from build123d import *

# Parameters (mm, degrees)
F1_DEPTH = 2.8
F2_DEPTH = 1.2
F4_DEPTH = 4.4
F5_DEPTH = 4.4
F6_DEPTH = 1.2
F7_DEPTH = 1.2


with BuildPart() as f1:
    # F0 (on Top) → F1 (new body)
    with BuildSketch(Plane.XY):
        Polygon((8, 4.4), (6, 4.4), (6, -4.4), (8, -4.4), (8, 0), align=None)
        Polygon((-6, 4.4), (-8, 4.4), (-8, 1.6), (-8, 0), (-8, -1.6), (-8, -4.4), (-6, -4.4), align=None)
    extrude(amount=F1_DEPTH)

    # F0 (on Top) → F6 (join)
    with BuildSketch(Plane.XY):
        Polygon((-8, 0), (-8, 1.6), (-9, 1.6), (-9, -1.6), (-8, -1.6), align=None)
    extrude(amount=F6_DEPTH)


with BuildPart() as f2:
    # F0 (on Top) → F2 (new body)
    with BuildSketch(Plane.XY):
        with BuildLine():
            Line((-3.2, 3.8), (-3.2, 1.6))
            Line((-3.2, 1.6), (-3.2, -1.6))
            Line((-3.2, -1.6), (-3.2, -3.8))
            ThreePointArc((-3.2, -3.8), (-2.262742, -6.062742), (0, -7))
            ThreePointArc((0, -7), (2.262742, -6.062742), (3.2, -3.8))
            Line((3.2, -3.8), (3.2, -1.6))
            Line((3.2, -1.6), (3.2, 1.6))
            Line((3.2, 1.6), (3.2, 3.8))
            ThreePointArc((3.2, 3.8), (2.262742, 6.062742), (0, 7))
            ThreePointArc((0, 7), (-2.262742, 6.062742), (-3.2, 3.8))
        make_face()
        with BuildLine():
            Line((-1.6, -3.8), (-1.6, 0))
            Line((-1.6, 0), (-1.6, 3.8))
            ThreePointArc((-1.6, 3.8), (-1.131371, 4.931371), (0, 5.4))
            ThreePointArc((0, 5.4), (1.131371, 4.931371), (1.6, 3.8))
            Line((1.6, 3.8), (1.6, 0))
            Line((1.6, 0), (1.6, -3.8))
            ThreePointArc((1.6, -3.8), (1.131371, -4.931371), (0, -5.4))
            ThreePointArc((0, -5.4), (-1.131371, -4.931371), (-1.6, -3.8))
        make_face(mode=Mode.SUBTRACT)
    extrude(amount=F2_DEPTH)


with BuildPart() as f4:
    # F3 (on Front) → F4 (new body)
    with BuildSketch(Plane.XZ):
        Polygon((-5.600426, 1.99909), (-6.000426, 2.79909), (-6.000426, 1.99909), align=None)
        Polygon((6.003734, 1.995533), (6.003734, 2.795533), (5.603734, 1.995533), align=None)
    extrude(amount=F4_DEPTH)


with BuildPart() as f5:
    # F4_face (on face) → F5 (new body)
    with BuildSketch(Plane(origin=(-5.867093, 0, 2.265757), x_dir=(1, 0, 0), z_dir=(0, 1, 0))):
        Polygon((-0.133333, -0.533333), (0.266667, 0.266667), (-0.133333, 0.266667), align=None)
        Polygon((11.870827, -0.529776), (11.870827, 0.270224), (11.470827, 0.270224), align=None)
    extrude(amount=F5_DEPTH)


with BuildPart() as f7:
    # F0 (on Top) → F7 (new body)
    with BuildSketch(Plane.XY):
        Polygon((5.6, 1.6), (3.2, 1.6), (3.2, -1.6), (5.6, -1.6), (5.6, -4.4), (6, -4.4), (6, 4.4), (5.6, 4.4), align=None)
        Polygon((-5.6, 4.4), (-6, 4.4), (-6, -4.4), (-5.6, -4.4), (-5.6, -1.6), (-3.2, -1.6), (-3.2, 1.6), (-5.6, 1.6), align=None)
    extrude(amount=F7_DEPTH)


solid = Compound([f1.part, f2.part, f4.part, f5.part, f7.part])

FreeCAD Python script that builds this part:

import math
import FreeCAD as App
import Part
import Sketcher

doc = App.newDocument("Part")
params = doc.addObject("Spreadsheet::Sheet", "Params")
for row, (alias, value) in enumerate([
    ("sketch1_width", "2 mm"),
    ("sketch1_height", "8.8 mm"),
    ("pad1_length", "2.8 mm"),
    ("sketch2_width", "1 mm"),
    ("sketch2_height", "3.2 mm"),
    ("pad2_length", "1.2 mm"),
    ("sketch3_radius", "3.199999 mm"),
    ("sketch3_radius2", "1.599999 mm"),
    ("sketch3_height", "7.6 mm"),
    ("pad3_length", "1.2 mm"),
    ("sketch4_width", "0.4 mm"),
    ("sketch4_height", "0.8 mm"),
    ("pad4_length", "4.4 mm"),
    ("sketch5_width", "0.4 mm"),
    ("sketch5_height", "0.8 mm"),
    ("pad5_length", "4.4 mm"),
    ("sketch6_width", "2.4 mm"),
    ("sketch6_width2", "0.4 mm"),
    ("sketch6_height", "3.2 mm"),
    ("sketch6_height2", "2.8 mm"),
    ("pad6_length", "1.2 mm"),
], start=1):
    params.set(f"A{row}", alias)
    params.set(f"B{row}", "=" + value)
    params.setAlias(f"B{row}", alias)

body = doc.addObject("PartDesign::Body", "Body")
body.AllowCompound = True

sketch1 = body.newObject("Sketcher::SketchObject", "Sketch")
sketch1.AttachmentSupport = (doc.getObject("XY_Plane"), [""])
sketch1.MapMode = "FlatFace"
sketch1.addGeometry(Part.LineSegment(App.Vector(8, 4.4, 0), App.Vector(6, 4.4, 0)), False)
sketch1.addGeometry(Part.LineSegment(App.Vector(6, 4.4, 0), App.Vector(6, -4.4, 0)), False)
sketch1.addGeometry(Part.LineSegment(App.Vector(6, -4.4, 0), App.Vector(8, -4.4, 0)), False)
sketch1.addGeometry(Part.LineSegment(App.Vector(8, -4.4, 0), App.Vector(8, 4.4, 0)), False)
sketch1.addGeometry(Part.LineSegment(App.Vector(-6, 4.4, 0), App.Vector(-8, 4.4, 0)), False)
sketch1.addGeometry(Part.LineSegment(App.Vector(-8, 4.4, 0), App.Vector(-8, -4.4, 0)), False)
sketch1.addGeometry(Part.LineSegment(App.Vector(-8, -4.4, 0), App.Vector(-6, -4.4, 0)), False)
sketch1.addGeometry(Part.LineSegment(App.Vector(-6, -4.4, 0), App.Vector(-6, 4.4, 0)), False)
sketch1.addConstraint(Sketcher.Constraint("Coincident", 0, 2, 1, 1))
sketch1.addConstraint(Sketcher.Constraint("Coincident", 1, 2, 2, 1))
sketch1.addConstraint(Sketcher.Constraint("Coincident", 2, 2, 3, 1))
sketch1.addConstraint(Sketcher.Constraint("Coincident", 3, 2, 0, 1))
sketch1.addConstraint(Sketcher.Constraint("Coincident", 4, 2, 5, 1))
sketch1.addConstraint(Sketcher.Constraint("Coincident", 5, 2, 6, 1))
sketch1.addConstraint(Sketcher.Constraint("Coincident", 6, 2, 7, 1))
sketch1.addConstraint(Sketcher.Constraint("Coincident", 7, 2, 4, 1))
sketch1.addConstraint(Sketcher.Constraint("Horizontal", 0))
sketch1.addConstraint(Sketcher.Constraint("Vertical", 1))
sketch1.addConstraint(Sketcher.Constraint("Horizontal", 2))
sketch1.addConstraint(Sketcher.Constraint("Vertical", 3))
sketch1.addConstraint(Sketcher.Constraint("Horizontal", 4))
sketch1.addConstraint(Sketcher.Constraint("Vertical", 5))
sketch1.addConstraint(Sketcher.Constraint("Horizontal", 6))
sketch1.addConstraint(Sketcher.Constraint("Vertical", 7))
sketch1.addConstraint(Sketcher.Constraint("Symmetric", 2, 2, 4, 2, -1, 1))
sketch1.addConstraint(Sketcher.Constraint("Symmetric", 0, 2, 6, 2, -1, 1))
sketch1.addConstraint(Sketcher.Constraint("Horizontal", 3, 2, 4, 2))
sketch1.addConstraint(Sketcher.Constraint("DistanceX", 0, 2, 0, 1, 2.0))
sketch1.addConstraint(Sketcher.Constraint("DistanceY", 1, 2, 1, 1, 8.8))
sketch1.addConstraint(Sketcher.Constraint("DistanceX", -1, 1, 0, 2, 6.0))
sketch1.setExpression("Constraints[19]", "Params.sketch1_width")
sketch1.setExpression("Constraints[20]", "Params.sketch1_height")
pad1 = body.newObject("PartDesign::Pad", "Pad")
pad1.Profile = sketch1
pad1.setExpression("Length", "Params.pad1_length")

sketch2 = body.newObject("Sketcher::SketchObject", "Sketch001")
sketch2.AttachmentSupport = (doc.getObject("XY_Plane"), [""])
sketch2.MapMode = "FlatFace"
sketch2.addGeometry(Part.LineSegment(App.Vector(-8, 1.6, 0), App.Vector(-9, 1.6, 0)), False)
sketch2.addGeometry(Part.LineSegment(App.Vector(-9, 1.6, 0), App.Vector(-9, -1.6, 0)), False)
sketch2.addGeometry(Part.LineSegment(App.Vector(-9, -1.6, 0), App.Vector(-8, -1.6, 0)), False)
sketch2.addGeometry(Part.LineSegment(App.Vector(-8, -1.6, 0), App.Vector(-8, 1.6, 0)), False)
sketch2.addConstraint(Sketcher.Constraint("Coincident", 0, 2, 1, 1))
sketch2.addConstraint(Sketcher.Constraint("Coincident", 1, 2, 2, 1))
sketch2.addConstraint(Sketcher.Constraint("Coincident", 2, 2, 3, 1))
sketch2.addConstraint(Sketcher.Constraint("Coincident", 3, 2, 0, 1))
sketch2.addConstraint(Sketcher.Constraint("Horizontal", 0))
sketch2.addConstraint(Sketcher.Constraint("Vertical", 1))
sketch2.addConstraint(Sketcher.Constraint("Horizontal", 2))
sketch2.addConstraint(Sketcher.Constraint("Vertical", 3))
sketch2.addConstraint(Sketcher.Constraint("DistanceX", 0, 2, 0, 1, 1.0))
sketch2.addConstraint(Sketcher.Constraint("DistanceY", 1, 2, 1, 1, 3.2))
sketch2.addConstraint(Sketcher.Constraint("DistanceX", 0, 2, -1, 1, 9.0))
sketch2.addConstraint(Sketcher.Constraint("DistanceY", -1, 1, 0, 2, 1.6))
sketch2.setExpression("Constraints[8]", "Params.sketch2_width")
sketch2.setExpression("Constraints[9]", "Params.sketch2_height")
pad2 = body.newObject("PartDesign::Pad", "Pad001")
pad2.Profile = sketch2
pad2.setExpression("Length", "Params.pad2_length")
body2 = doc.addObject("PartDesign::Body", "Body001")

sketch3 = body2.newObject("Sketcher::SketchObject", "Sketch002")
sketch3.AttachmentSupport = (doc.getObject("XY_Plane001"), [""])
sketch3.MapMode = "FlatFace"
sketch3.addGeometry(Part.LineSegment(App.Vector(-3.2, 3.8, 0), App.Vector(-3.2, -3.8, 0)), False)
sketch3.addGeometry(Part.ArcOfCircle(Part.Circle(App.Vector(-0.000001, -3.800001, 0), App.Vector(0, 0, 1), 3.199999), math.radians(179.999982), math.radians(270.000018)), False)
sketch3.addGeometry(Part.ArcOfCircle(Part.Circle(App.Vector(0.000001, -3.800001, 0), App.Vector(0, 0, 1), 3.199999), math.radians(-90.000018), math.radians(0.000018)), False)
sketch3.addGeometry(Part.LineSegment(App.Vector(3.2, -3.8, 0), App.Vector(3.2, 3.8, 0)), False)
sketch3.addGeometry(Part.ArcOfCircle(Part.Circle(App.Vector(0.000001, 3.800001, 0), App.Vector(0, 0, 1), 3.199999), math.radians(-0.000018), math.radians(90.000018)), False)
sketch3.addGeometry(Part.ArcOfCircle(Part.Circle(App.Vector(-0.000001, 3.800001, 0), App.Vector(0, 0, 1), 3.199999), math.radians(89.999982), math.radians(180.000018)), False)
sketch3.addGeometry(Part.ArcOfCircle(Part.Circle(App.Vector(-0.000001, -3.800001, 0), App.Vector(0, 0, 1), 1.599999), math.radians(179.999982), math.radians(270.000018)), False)
sketch3.addGeometry(Part.LineSegment(App.Vector(-1.6, -3.8, 0), App.Vector(-1.6, 3.8, 0)), False)
sketch3.addGeometry(Part.ArcOfCircle(Part.Circle(App.Vector(-0.000001, 3.800001, 0), App.Vector(0, 0, 1), 1.599999), math.radians(89.999982), math.radians(180.000018)), False)
sketch3.addGeometry(Part.ArcOfCircle(Part.Circle(App.Vector(0.000001, 3.800001, 0), App.Vector(0, 0, 1), 1.599999), math.radians(-0.000018), math.radians(90.000018)), False)
sketch3.addGeometry(Part.LineSegment(App.Vector(1.6, 3.8, 0), App.Vector(1.6, -3.8, 0)), False)
sketch3.addGeometry(Part.ArcOfCircle(Part.Circle(App.Vector(0.000001, -3.800001, 0), App.Vector(0, 0, 1), 1.599999), math.radians(-90.000018), math.radians(0.000018)), False)
sketch3.addConstraint(Sketcher.Constraint("Tangent", 0, 2, 1, 1))
sketch3.addConstraint(Sketcher.Constraint("Tangent", 1, 2, 2, 1))
sketch3.addConstraint(Sketcher.Constraint("Tangent", 2, 2, 3, 1))
sketch3.addConstraint(Sketcher.Constraint("Tangent", 3, 2, 4, 1))
sketch3.addConstraint(Sketcher.Constraint("Tangent", 4, 2, 5, 1))
sketch3.addConstraint(Sketcher.Constraint("Tangent", 5, 2, 0, 1))
sketch3.addConstraint(Sketcher.Constraint("Tangent", 6, 1, 7, 1))
sketch3.addConstraint(Sketcher.Constraint("Tangent", 7, 2, 8, 2))
sketch3.addConstraint(Sketcher.Constraint("Tangent", 8, 1, 9, 2))
sketch3.addConstraint(Sketcher.Constraint("Tangent", 9, 1, 10, 1))
sketch3.addConstraint(Sketcher.Constraint("Tangent", 10, 2, 11, 2))
sketch3.addConstraint(Sketcher.Constraint("Tangent", 11, 1, 6, 2))
sketch3.addConstraint(Sketcher.Constraint("Vertical", 0))
sketch3.addConstraint(Sketcher.Constraint("Vertical", 3))
sketch3.addConstraint(Sketcher.Constraint("Vertical", 7))
sketch3.addConstraint(Sketcher.Constraint("Vertical", 10))
sketch3.addConstraint(Sketcher.Constraint("Coincident", 6, 3, 1, 3))
sketch3.addConstraint(Sketcher.Constraint("Coincident", 8, 3, 4, 3))
sketch3.addConstraint(Sketcher.Constraint("Equal", 1, 2))
sketch3.addConstraint(Sketcher.Constraint("Equal", 2, 4))
sketch3.addConstraint(Sketcher.Constraint("Equal", 8, 9))
sketch3.addConstraint(Sketcher.Constraint("Symmetric", 1, 3, 4, 3, -1, 1))
sketch3.addConstraint(Sketcher.Constraint("PointOnObject", 1, 2, -2))
sketch3.addConstraint(Sketcher.Constraint("PointOnObject", 4, 2, -2))
sketch3.addConstraint(Sketcher.Constraint("PointOnObject", 8, 1, -2))
sketch3.addConstraint(Sketcher.Constraint("PointOnObject", 11, 1, -2))
sketch3.addConstraint(Sketcher.Constraint("Radius", 1, 3.199999))
sketch3.addConstraint(Sketcher.Constraint("Radius", 6, 1.599999))
sketch3.addConstraint(Sketcher.Constraint("DistanceY", 0, 2, 0, 1, 7.6))
sketch3.setExpression("Constraints[26]", "Params.sketch3_radius")
sketch3.setExpression("Constraints[27]", "Params.sketch3_radius2")
sketch3.setExpression("Constraints[28]", "Params.sketch3_height")
pad3 = body2.newObject("PartDesign::Pad", "Pad002")
pad3.Profile = sketch3
pad3.setExpression("Length", "Params.pad3_length")
body3 = doc.addObject("PartDesign::Body", "Body002")
body3.AllowCompound = True

sketch4 = body3.newObject("Sketcher::SketchObject", "Sketch003")
sketch4.AttachmentSupport = (doc.getObject("XZ_Plane002"), [""])
sketch4.MapMode = "FlatFace"
sketch4.addGeometry(Part.LineSegment(App.Vector(-5.600426, 1.99909, 0), App.Vector(-6.000426, 2.79909, 0)), False)
sketch4.addGeometry(Part.LineSegment(App.Vector(-6.000426, 2.79909, 0), App.Vector(-6.000426, 1.99909, 0)), False)
sketch4.addGeometry(Part.LineSegment(App.Vector(-6.000426, 1.99909, 0), App.Vector(-5.600426, 1.99909, 0)), False)
sketch4.addGeometry(Part.LineSegment(App.Vector(6.003734, 1.995533, 0), App.Vector(6.003734, 2.795533, 0)), False)
sketch4.addGeometry(Part.LineSegment(App.Vector(6.003734, 2.795533, 0), App.Vector(5.603734, 1.995533, 0)), False)
sketch4.addGeometry(Part.LineSegment(App.Vector(5.603734, 1.995533, 0), App.Vector(6.003734, 1.995533, 0)), False)
sketch4.addConstraint(Sketcher.Constraint("Coincident", 0, 2, 1, 1))
sketch4.addConstraint(Sketcher.Constraint("Coincident", 1, 2, 2, 1))
sketch4.addConstraint(Sketcher.Constraint("Coincident", 2, 2, 0, 1))
sketch4.addConstraint(Sketcher.Constraint("Coincident", 3, 2, 4, 1))
sketch4.addConstraint(Sketcher.Constraint("Coincident", 4, 2, 5, 1))
sketch4.addConstraint(Sketcher.Constraint("Coincident", 5, 2, 3, 1))
sketch4.addConstraint(Sketcher.Constraint("Vertical", 1))
sketch4.addConstraint(Sketcher.Constraint("Horizontal", 2))
sketch4.addConstraint(Sketcher.Constraint("Vertical", 3))
sketch4.addConstraint(Sketcher.Constraint("Horizontal", 5))
sketch4.addConstraint(Sketcher.Constraint("Equal", 2, 5))
sketch4.addConstraint(Sketcher.Constraint("Equal", 1, 3))
sketch4.addConstraint(Sketcher.Constraint("DistanceX", 2, 1, 2, 2, 0.4))
sketch4.addConstraint(Sketcher.Constraint("DistanceY", 1, 2, 1, 1, 0.8))
sketch4.addConstraint(Sketcher.Constraint("DistanceY", -1, 1, 0, 2, 2.79909))
sketch4.addConstraint(Sketcher.Constraint("DistanceX", 2, 2, 3, 2, 11.60416))
sketch4.addConstraint(Sketcher.Constraint("DistanceX", 0, 2, -1, 1, 6.000426))
sketch4.addConstraint(Sketcher.Constraint("DistanceY", -1, 1, 3, 2, 2.795533))
sketch4.setExpression("Constraints[12]", "Params.sketch4_width")
sketch4.setExpression("Constraints[13]", "Params.sketch4_height")
pad4 = body3.newObject("PartDesign::Pad", "Pad003")
pad4.Profile = sketch4
pad4.setExpression("Length", "Params.pad4_length")
body4 = doc.addObject("PartDesign::Body", "Body003")
body4.AllowCompound = True

sketch5 = body4.newObject("Sketcher::SketchObject", "Sketch004")
sketch5.AttachmentSupport = (doc.getObject("XZ_Plane003"), [""])
sketch5.MapMode = "FlatFace"
sketch5.addGeometry(Part.LineSegment(App.Vector(-6.000426, 2.79909, 0), App.Vector(-5.600426, 1.99909, 0)), False)
sketch5.addGeometry(Part.LineSegment(App.Vector(-5.600426, 1.99909, 0), App.Vector(-6.000426, 1.99909, 0)), False)
sketch5.addGeometry(Part.LineSegment(App.Vector(-6.000426, 1.99909, 0), App.Vector(-6.000426, 2.79909, 0)), False)
sketch5.addGeometry(Part.LineSegment(App.Vector(6.003734, 2.795533, 0), App.Vector(6.003734, 1.995533, 0)), False)
sketch5.addGeometry(Part.LineSegment(App.Vector(6.003734, 1.995533, 0), App.Vector(5.603734, 1.995533, 0)), False)
sketch5.addGeometry(Part.LineSegment(App.Vector(5.603734, 1.995533, 0), App.Vector(6.003734, 2.795533, 0)), False)
sketch5.addConstraint(Sketcher.Constraint("Coincident", 0, 2, 1, 1))
sketch5.addConstraint(Sketcher.Constraint("Coincident", 1, 2, 2, 1))
sketch5.addConstraint(Sketcher.Constraint("Coincident", 2, 2, 0, 1))
sketch5.addConstraint(Sketcher.Constraint("Coincident", 3, 2, 4, 1))
sketch5.addConstraint(Sketcher.Constraint("Coincident", 4, 2, 5, 1))
sketch5.addConstraint(Sketcher.Constraint("Coincident", 5, 2, 3, 1))
sketch5.addConstraint(Sketcher.Constraint("Horizontal", 1))
sketch5.addConstraint(Sketcher.Constraint("Vertical", 2))
sketch5.addConstraint(Sketcher.Constraint("Vertical", 3))
sketch5.addConstraint(Sketcher.Constraint("Horizontal", 4))
sketch5.addConstraint(Sketcher.Constraint("Equal", 1, 4))
sketch5.addConstraint(Sketcher.Constraint("Equal", 2, 3))
sketch5.addConstraint(Sketcher.Constraint("DistanceX", 1, 2, 1, 1, 0.4))
sketch5.addConstraint(Sketcher.Constraint("DistanceY", 2, 1, 2, 2, 0.8))
sketch5.addConstraint(Sketcher.Constraint("DistanceY", -1, 1, 0, 2, 1.99909))
sketch5.addConstraint(Sketcher.Constraint("DistanceX", 0, 2, 3, 2, 11.60416))
sketch5.addConstraint(Sketcher.Constraint("DistanceX", 0, 2, -1, 1, 5.600426))
sketch5.addConstraint(Sketcher.Constraint("DistanceY", -1, 1, 3, 2, 1.995533))
sketch5.setExpression("Constraints[12]", "Params.sketch5_width")
sketch5.setExpression("Constraints[13]", "Params.sketch5_height")
pad5 = body4.newObject("PartDesign::Pad", "Pad004")
pad5.Profile = sketch5
pad5.setExpression("Length", "Params.pad5_length")
pad5.Reversed = True
body5 = doc.addObject("PartDesign::Body", "Body004")
body5.AllowCompound = True

sketch6 = body5.newObject("Sketcher::SketchObject", "Sketch005")
sketch6.AttachmentSupport = (doc.getObject("XY_Plane004"), [""])
sketch6.MapMode = "FlatFace"
sketch6.addGeometry(Part.LineSegment(App.Vector(5.6, 1.6, 0), App.Vector(3.2, 1.6, 0)), False)
sketch6.addGeometry(Part.LineSegment(App.Vector(3.2, 1.6, 0), App.Vector(3.2, -1.6, 0)), False)
sketch6.addGeometry(Part.LineSegment(App.Vector(3.2, -1.6, 0), App.Vector(5.6, -1.6, 0)), False)
sketch6.addGeometry(Part.LineSegment(App.Vector(5.6, -1.6, 0), App.Vector(5.6, -4.4, 0)), False)
sketch6.addGeometry(Part.LineSegment(App.Vector(5.6, -4.4, 0), App.Vector(6, -4.4, 0)), False)
sketch6.addGeometry(Part.LineSegment(App.Vector(6, -4.4, 0), App.Vector(6, 4.4, 0)), False)
sketch6.addGeometry(Part.LineSegment(App.Vector(6, 4.4, 0), App.Vector(5.6, 4.4, 0)), False)
sketch6.addGeometry(Part.LineSegment(App.Vector(5.6, 4.4, 0), App.Vector(5.6, 1.6, 0)), False)
sketch6.addGeometry(Part.LineSegment(App.Vector(-5.6, 4.4, 0), App.Vector(-6, 4.4, 0)), False)
sketch6.addGeometry(Part.LineSegment(App.Vector(-6, 4.4, 0), App.Vector(-6, -4.4, 0)), False)
sketch6.addGeometry(Part.LineSegment(App.Vector(-6, -4.4, 0), App.Vector(-5.6, -4.4, 0)), False)
sketch6.addGeometry(Part.LineSegment(App.Vector(-5.6, -4.4, 0), App.Vector(-5.6, -1.6, 0)), False)
sketch6.addGeometry(Part.LineSegment(App.Vector(-5.6, -1.6, 0), App.Vector(-3.2, -1.6, 0)), False)
sketch6.addGeometry(Part.LineSegment(App.Vector(-3.2, -1.6, 0), App.Vector(-3.2, 1.6, 0)), False)
sketch6.addGeometry(Part.LineSegment(App.Vector(-3.2, 1.6, 0), App.Vector(-5.6, 1.6, 0)), False)
sketch6.addGeometry(Part.LineSegment(App.Vector(-5.6, 1.6, 0), App.Vector(-5.6, 4.4, 0)), False)
sketch6.addConstraint(Sketcher.Constraint("Coincident", 0, 2, 1, 1))
sketch6.addConstraint(Sketcher.Constraint("Coincident", 1, 2, 2, 1))
sketch6.addConstraint(Sketcher.Constraint("Coincident", 2, 2, 3, 1))
sketch6.addConstraint(Sketcher.Constraint("Coincident", 3, 2, 4, 1))
sketch6.addConstraint(Sketcher.Constraint("Coincident", 4, 2, 5, 1))
sketch6.addConstraint(Sketcher.Constraint("Coincident", 5, 2, 6, 1))
sketch6.addConstraint(Sketcher.Constraint("Coincident", 6, 2, 7, 1))
sketch6.addConstraint(Sketcher.Constraint("Coincident", 7, 2, 0, 1))
sketch6.addConstraint(Sketcher.Constraint("Coincident", 8, 2, 9, 1))
sketch6.addConstraint(Sketcher.Constraint("Coincident", 9, 2, 10, 1))
sketch6.addConstraint(Sketcher.Constraint("Coincident", 10, 2, 11, 1))
sketch6.addConstraint(Sketcher.Constraint("Coincident", 11, 2, 12, 1))
sketch6.addConstraint(Sketcher.Constraint("Coincident", 12, 2, 13, 1))
sketch6.addConstraint(Sketcher.Constraint("Coincident", 13, 2, 14, 1))
sketch6.addConstraint(Sketcher.Constraint("Coincident", 14, 2, 15, 1))
sketch6.addConstraint(Sketcher.Constraint("Coincident", 15, 2, 8, 1))
sketch6.addConstraint(Sketcher.Constraint("Horizontal", 0))
sketch6.addConstraint(Sketcher.Constraint("Vertical", 1))
sketch6.addConstraint(Sketcher.Constraint("Horizontal", 2))
sketch6.addConstraint(Sketcher.Constraint("Vertical", 3))
sketch6.addConstraint(Sketcher.Constraint("Horizontal", 4))
sketch6.addConstraint(Sketcher.Constraint("Vertical", 5))
sketch6.addConstraint(Sketcher.Constraint("Horizontal", 6))
sketch6.addConstraint(Sketcher.Constraint("Vertical", 7))
sketch6.addConstraint(Sketcher.Constraint("Horizontal", 8))
sketch6.addConstraint(Sketcher.Constraint("Vertical", 9))
sketch6.addConstraint(Sketcher.Constraint("Horizontal", 10))
sketch6.addConstraint(Sketcher.Constraint("Vertical", 11))
sketch6.addConstraint(Sketcher.Constraint("Horizontal", 12))
sketch6.addConstraint(Sketcher.Constraint("Vertical", 13))
sketch6.addConstraint(Sketcher.Constraint("Horizontal", 14))
sketch6.addConstraint(Sketcher.Constraint("Vertical", 15))
sketch6.addConstraint(Sketcher.Constraint("Symmetric", 4, 2, 8, 2, -1, 1))
sketch6.addConstraint(Sketcher.Constraint("Symmetric", 6, 2, 10, 2, -1, 1))
sketch6.addConstraint(Sketcher.Constraint("Symmetric", 0, 2, 12, 2, -1, 1))
sketch6.addConstraint(Sketcher.Constraint("Symmetric", 2, 2, 14, 2, -1, 1))
sketch6.addConstraint(Sketcher.Constraint("Symmetric", 3, 2, 10, 2, -2))
sketch6.addConstraint(Sketcher.Constraint("Horizontal", 2, 2, 11, 2))
sketch6.addConstraint(Sketcher.Constraint("DistanceX", 0, 2, 0, 1, 2.4))
sketch6.addConstraint(Sketcher.Constraint("DistanceX", 4, 1, 4, 2, 0.4))
sketch6.addConstraint(Sketcher.Constraint("DistanceY", 1, 2, 1, 1, 3.2))
sketch6.addConstraint(Sketcher.Constraint("DistanceY", 3, 2, 3, 1, 2.8))
sketch6.addConstraint(Sketcher.Constraint("DistanceX", -1, 1, 4, 2, 6.0))
sketch6.setExpression("Constraints[38]", "Params.sketch6_width")
sketch6.setExpression("Constraints[39]", "Params.sketch6_width2")
sketch6.setExpression("Constraints[40]", "Params.sketch6_height")
sketch6.setExpression("Constraints[41]", "Params.sketch6_height2")
pad6 = body5.newObject("PartDesign::Pad", "Pad005")
pad6.Profile = sketch6
pad6.setExpression("Length", "Params.pad6_length")

doc.recompute()
